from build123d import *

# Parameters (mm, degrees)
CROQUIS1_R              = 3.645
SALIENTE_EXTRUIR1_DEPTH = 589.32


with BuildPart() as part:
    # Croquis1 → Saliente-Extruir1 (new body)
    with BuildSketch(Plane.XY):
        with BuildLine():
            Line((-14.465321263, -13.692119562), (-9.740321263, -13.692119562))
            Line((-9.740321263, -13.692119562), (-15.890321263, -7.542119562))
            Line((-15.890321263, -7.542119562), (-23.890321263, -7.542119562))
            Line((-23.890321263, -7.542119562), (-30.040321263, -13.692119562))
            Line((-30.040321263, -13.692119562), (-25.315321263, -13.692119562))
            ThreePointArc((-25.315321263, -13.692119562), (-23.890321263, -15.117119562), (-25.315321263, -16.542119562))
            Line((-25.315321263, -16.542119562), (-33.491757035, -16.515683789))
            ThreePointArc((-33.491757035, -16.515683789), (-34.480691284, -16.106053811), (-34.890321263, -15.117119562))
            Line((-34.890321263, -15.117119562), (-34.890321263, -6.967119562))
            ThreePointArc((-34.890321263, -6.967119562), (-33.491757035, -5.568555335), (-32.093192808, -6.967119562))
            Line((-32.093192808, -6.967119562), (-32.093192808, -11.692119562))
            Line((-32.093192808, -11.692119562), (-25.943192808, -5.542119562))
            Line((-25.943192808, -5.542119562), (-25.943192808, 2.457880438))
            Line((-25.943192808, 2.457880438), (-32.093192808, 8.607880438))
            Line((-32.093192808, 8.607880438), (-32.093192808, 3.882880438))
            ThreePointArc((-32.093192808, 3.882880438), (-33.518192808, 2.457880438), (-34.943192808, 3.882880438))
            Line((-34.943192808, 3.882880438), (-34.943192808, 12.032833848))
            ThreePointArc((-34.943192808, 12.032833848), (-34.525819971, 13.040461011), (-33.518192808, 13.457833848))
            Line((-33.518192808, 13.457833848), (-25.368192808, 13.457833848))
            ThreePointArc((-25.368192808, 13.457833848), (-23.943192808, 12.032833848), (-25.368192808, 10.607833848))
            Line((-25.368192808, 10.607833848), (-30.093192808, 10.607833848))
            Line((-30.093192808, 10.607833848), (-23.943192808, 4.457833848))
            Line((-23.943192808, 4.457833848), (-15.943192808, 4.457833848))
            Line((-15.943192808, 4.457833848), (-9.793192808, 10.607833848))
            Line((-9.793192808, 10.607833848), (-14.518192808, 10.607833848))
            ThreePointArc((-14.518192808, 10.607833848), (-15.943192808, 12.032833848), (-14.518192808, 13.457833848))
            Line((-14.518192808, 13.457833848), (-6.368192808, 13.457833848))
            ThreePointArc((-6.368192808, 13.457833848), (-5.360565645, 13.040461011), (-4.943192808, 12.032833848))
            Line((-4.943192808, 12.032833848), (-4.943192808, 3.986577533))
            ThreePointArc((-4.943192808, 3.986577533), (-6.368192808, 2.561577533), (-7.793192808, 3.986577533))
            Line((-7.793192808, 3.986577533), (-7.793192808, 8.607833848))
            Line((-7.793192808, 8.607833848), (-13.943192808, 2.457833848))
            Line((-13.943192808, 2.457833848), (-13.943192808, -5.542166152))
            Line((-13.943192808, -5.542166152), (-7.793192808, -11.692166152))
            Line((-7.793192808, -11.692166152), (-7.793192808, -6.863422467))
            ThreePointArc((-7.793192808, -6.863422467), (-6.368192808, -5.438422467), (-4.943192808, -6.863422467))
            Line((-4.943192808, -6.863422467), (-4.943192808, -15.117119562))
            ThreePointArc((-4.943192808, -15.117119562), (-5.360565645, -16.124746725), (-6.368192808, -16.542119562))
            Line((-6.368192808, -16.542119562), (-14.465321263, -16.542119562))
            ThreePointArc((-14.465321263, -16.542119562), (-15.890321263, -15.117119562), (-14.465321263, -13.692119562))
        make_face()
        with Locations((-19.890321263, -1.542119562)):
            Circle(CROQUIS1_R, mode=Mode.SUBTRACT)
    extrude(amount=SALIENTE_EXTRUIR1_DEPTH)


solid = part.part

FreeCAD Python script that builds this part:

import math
import FreeCAD as App
import Part
import Sketcher
Q = App.Units.Quantity

doc = App.newDocument("Part")
params = doc.addObject("Spreadsheet::Sheet", "Params")
for row, (alias, value) in enumerate([
    ("sketch1_diameter", "7.29 mm"),
    ("sketch1_width", "8 mm"),
    ("pad1_length", "589.32 mm"),
], start=1):
    params.set(f"A{row}", alias)
    params.set(f"B{row}", "=" + value)
    params.setAlias(f"B{row}", alias)

body = doc.addObject("PartDesign::Body", "Body")

sketch1 = doc.addObject("Sketcher::SketchObject", "Sketch")
body.addObject(sketch1)
sketch1.AttachmentSupport = (doc.XY_Plane, [""])
sketch1.MapMode = "FlatFace"
sketch1.addGeometry([
    Part.LineSegment(App.Vector(-9.7, -13.7, 0), App.Vector(-14.5, -13.7, 0)),
    Part.ArcOfCircle(Part.Circle(App.Vector(-14.5, -15.1, 0), App.Vector(0, 0, 1), 1.4), math.radians(90), math.radians(270)),
    Part.LineSegment(App.Vector(-14.5, -16.5, 0), App.Vector(-6.4, -16.5, 0)),
    Part.ArcOfCircle(Part.Circle(App.Vector(-6.4, -15.1, 0), App.Vector(0, 0, 1), 1.4), math.radians(-90), math.radians(0)),
    Part.LineSegment(App.Vector(-4.9, -15.1, 0), App.Vector(-4.9, -6.9, 0)),
    Part.ArcOfCircle(Part.Circle(App.Vector(-6.4, -6.9, 0), App.Vector(0, 0, 1), 1.4), math.radians(0), math.radians(180)),
    Part.LineSegment(App.Vector(-7.8, -6.9, 0), App.Vector(-7.8, -11.7, 0)),
    Part.LineSegment(App.Vector(-7.8, -11.7, 0), App.Vector(-13.9, -5.5, 0)),
    Part.LineSegment(App.Vector(-13.9, -5.5, 0), App.Vector(-13.9, 2.5, 0)),
    Part.LineSegment(App.Vector(-13.9, 2.5, 0), App.Vector(-7.8, 8.6, 0)),
    Part.LineSegment(App.Vector(-7.8, 8.6, 0), App.Vector(-7.8, 4, 0)),
    Part.ArcOfCircle(Part.Circle(App.Vector(-6.4, 4, 0), App.Vector(0, 0, 1), 1.4), math.radians(180), math.radians(360)),
    Part.LineSegment(App.Vector(-4.9, 4, 0), App.Vector(-4.9, 12, 0)),
    Part.ArcOfCircle(Part.Circle(App.Vector(-6.4, 12, 0), App.Vector(0, 0, 1), 1.4), math.radians(0), math.radians(90)),
    Part.LineSegment(App.Vector(-6.4, 13.5, 0), App.Vector(-14.5, 13.5, 0)),
    Part.ArcOfCircle(Part.Circle(App.Vector(-14.5, 12, 0), App.Vector(0, 0, 1), 1.4), math.radians(90), math.radians(270)),
    Part.LineSegment(App.Vector(-14.5, 10.6, 0), App.Vector(-9.8, 10.6, 0)),
    Part.LineSegment(App.Vector(-9.8, 10.6, 0), App.Vector(-15.9, 4.5, 0)),
    Part.LineSegment(App.Vector(-15.9, 4.5, 0), App.Vector(-23.9, 4.5, 0)),
    Part.LineSegment(App.Vector(-23.9, 4.5, 0), App.Vector(-30.1, 10.6, 0)),
    Part.LineSegment(App.Vector(-30.1, 10.6, 0), App.Vector(-25.4, 10.6, 0)),
    Part.ArcOfCircle(Part.Circle(App.Vector(-25.4, 12, 0), App.Vector(0, 0, 1), 1.4), math.radians(-90), math.radians(90)),
    Part.LineSegment(App.Vector(-25.4, 13.5, 0), App.Vector(-33.5, 13.5, 0)),
    Part.ArcOfCircle(Part.Circle(App.Vector(-33.5, 12, 0), App.Vector(0, 0, 1), 1.4), math.radians(90), math.radians(180)),
    Part.LineSegment(App.Vector(-34.9, 12, 0), App.Vector(-34.9, 3.9, 0)),
    Part.ArcOfCircle(Part.Circle(App.Vector(-33.5, 3.9, 0), App.Vector(0, 0, 1), 1.4), math.radians(180), math.radians(360)),
    Part.LineSegment(App.Vector(-32.1, 3.9, 0), App.Vector(-32.1, 8.6, 0)),
    Part.LineSegment(App.Vector(-32.1, 8.6, 0), App.Vector(-25.9, 2.5, 0)),
    Part.LineSegment(App.Vector(-25.9, 2.5, 0), App.Vector(-25.9, -5.5, 0)),
    Part.LineSegment(App.Vector(-25.9, -5.5, 0), App.Vector(-32.1, -11.7, 0)),
    Part.LineSegment(App.Vector(-32.1, -11.7, 0), App.Vector(-32.1, -7, 0)),
    Part.ArcOfCircle(Part.Circle(App.Vector(-33.5, -7, 0), App.Vector(0, 0, 1), 1.4), math.radians(0), math.radians(180)),
    Part.LineSegment(App.Vector(-34.9, -7, 0), App.Vector(-34.9, -15.1, 0)),
    Part.ArcOfCircle(Part.Circle(App.Vector(-33.5, -15.1, 0), App.Vector(0, 0, 1), 1.4), math.radians(-180), math.radians(-90)),
    Part.LineSegment(App.Vector(-33.5, -16.5, 0), App.Vector(-25.3, -16.5, 0)),
    Part.ArcOfCircle(Part.Circle(App.Vector(-25.3, -15.1, 0), App.Vector(0, 0, 1), 1.4), math.radians(-90), math.radians(90)),
    Part.LineSegment(App.Vector(-25.3, -13.7, 0), App.Vector(-30, -13.7, 0)),
    Part.LineSegment(App.Vector(-30, -13.7, 0), App.Vector(-23.9, -7.5, 0)),
    Part.LineSegment(App.Vector(-23.9, -7.5, 0), App.Vector(-15.9, -7.5, 0)),
    Part.LineSegment(App.Vector(-15.9, -7.5, 0), App.Vector(-9.7, -13.7, 0)),
    Part.Circle(App.Vector(-19.9, -1.5, 0), App.Vector(0, 0, 1), 3.6),
], False)
sketch1.addConstraint([
    Sketcher.Constraint("Tangent", 0, 2, 1, 1),
    Sketcher.Constraint("Tangent", 1, 2, 2, 1),
    Sketcher.Constraint("Tangent", 2, 2, 3, 1),
    Sketcher.Constraint("Tangent", 3, 2, 4, 1),
    Sketcher.Constraint("Tangent", 4, 2, 5, 1),
    Sketcher.Constraint("Tangent", 5, 2, 6, 1),
    Sketcher.Constraint("Coincident", 6, 2, 7, 1),
    Sketcher.Constraint("Coincident", 7, 2, 8, 1),
    Sketcher.Constraint("Coincident", 8, 2, 9, 1),
    Sketcher.Constraint("Coincident", 9, 2, 10, 1),
    Sketcher.Constraint("Tangent", 10, 2, 11, 1),
    Sketcher.Constraint("Tangent", 11, 2, 12, 1),
    Sketcher.Constraint("Tangent", 12, 2, 13, 1),
    Sketcher.Constraint("Tangent", 13, 2, 14, 1),
    Sketcher.Constraint("Tangent", 14, 2, 15, 1),
    Sketcher.Constraint("Tangent", 15, 2, 16, 1),
    Sketcher.Constraint("Coincident", 16, 2, 17, 1),
    Sketcher.Constraint("Coincident", 17, 2, 18, 1),
    Sketcher.Constraint("Coincident", 18, 2, 19, 1),
    Sketcher.Constraint("Coincident", 19, 2, 20, 1),
    Sketcher.Constraint("Tangent", 20, 2, 21, 1),
    Sketcher.Constraint("Tangent", 21, 2, 22, 1),
    Sketcher.Constraint("Tangent", 22, 2, 23, 1),
    Sketcher.Constraint("Tangent", 23, 2, 24, 1),
    Sketcher.Constraint("Tangent", 24, 2, 25, 1),
    Sketcher.Constraint("Tangent", 25, 2, 26, 1),
    Sketcher.Constraint("Coincident", 26, 2, 27, 1),
    Sketcher.Constraint("Coincident", 27, 2, 28, 1),
    Sketcher.Constraint("Coincident", 28, 2, 29, 1),
    Sketcher.Constraint("Coincident", 29, 2, 30, 1),
    Sketcher.Constraint("Tangent", 30, 2, 31, 1),
    Sketcher.Constraint("Tangent", 31, 2, 32, 1),
    Sketcher.Constraint("Tangent", 32, 2, 33, 1),
    Sketcher.Constraint("Coincident", 33, 2, 34, 1),
    Sketcher.Constraint("Coincident", 34, 2, 35, 1),
    Sketcher.Constraint("Tangent", 35, 2, 36, 1),
    Sketcher.Constraint("Coincident", 36, 2, 37, 1),
    Sketcher.Constraint("Coincident", 37, 2, 38, 1),
    Sketcher.Constraint("Coincident", 38, 2, 39, 1),
    Sketcher.Constraint("Coincident", 39, 2, 0, 1),
    Sketcher.Constraint("Horizontal", 0),
    Sketcher.Constraint("Horizontal", 2),
    Sketcher.Constraint("Vertical", 4),
    Sketcher.Constraint("Vertical", 6),
    Sketcher.Constraint("Vertical", 8),
    Sketcher.Constraint("Vertical", 10),
    Sketcher.Constraint("Vertical", 12),
    Sketcher.Constraint("Horizontal", 14),
    Sketcher.Constraint("Horizontal", 16),
    Sketcher.Constraint("Horizontal", 18),
    Sketcher.Constraint("Horizontal", 20),
    Sketcher.Constraint("Horizontal", 22),
    Sketcher.Constraint("Vertical", 24),
    Sketcher.Constraint("Vertical", 26),
    Sketcher.Constraint("Vertical", 28),
    Sketcher.Constraint("Vertical", 30),
    Sketcher.Constraint("Vertical", 32),
    Sketcher.Constraint("Horizontal", 36),
    Sketcher.Constraint("Horizontal", 38),
    Sketcher.Constraint("Equal", 1, 3),
    Sketcher.Constraint("Equal", 3, 5),
    Sketcher.Constraint("Equal", 5, 11),
    Sketcher.Constraint("Equal", 11, 13),
    Sketcher.Constraint("Equal", 13, 15),
    Sketcher.Constraint("Equal", 15, 21),
    Sketcher.Constraint("Equal", 21, 23),
    Sketcher.Constraint("Equal", 23, 25),
    Sketcher.Constraint("Equal", 31, 33),
    Sketcher.Constraint("Equal", 25, 35),
    Sketcher.Constraint("Perpendicular", 7, 9),
    Sketcher.Constraint("Parallel", 9, 17),
    Sketcher.Constraint("Perpendicular", 17, 19),
    Sketcher.Constraint("Parallel", 19, 27),
    Sketcher.Constraint("Perpendicular", 27, 29),
    Sketcher.Constraint("Parallel", 29, 37),
    Sketcher.Constraint("Perpendicular", 37, 39),
    Sketcher.Constraint("Horizontal", 15, 3, 21, 3),
    Sketcher.Constraint("Horizontal", 3, 3, 33, 3),
    Sketcher.Constraint("Horizontal", 33, 3, 35, 3),
    Sketcher.Constraint("Vertical", 5, 3, 11, 3),
    Sketcher.Constraint("Vertical", 26, 2, 29, 2),
    Sketcher.Constraint("Vertical", 31, 3, 33, 2),
    Sketcher.Constraint("Vertical", 35, 3, 34, 2),
    Sketcher.Constraint("Equal", 0, 16),
    Sketcher.Constraint("Equal", 16, 20),
    Sketcher.Constraint("Equal", 14, 22),
    Sketcher.Constraint("Equal", 20, 36),
    Sketcher.Constraint("Equal", 18, 38),
    Sketcher.Constraint("Equal", 38, 8),
    Sketcher.Constraint("Equal", 36, 26),
    Sketcher.Constraint("Equal", 8, 28),
    Sketcher.Constraint("Equal", 26, 30),
    Sketcher.Constraint("Equal", 22, 32),
    Sketcher.Constraint("Equal", 7, 9),
    Sketcher.Constraint("Equal", 9, 17),
    Sketcher.Constraint("Equal", 19, 27),
    Sketcher.Constraint("Equal", 29, 37),
    Sketcher.Constraint("Diameter", 40, Q("7.29 mm")),
    Sketcher.Constraint("DistanceX", 18, 2, 18, 1, Q("8 mm")),
    Sketcher.Constraint("Radius", 1, Q("1.425 mm")),
    Sketcher.Constraint("DistanceX", 21, 3, 13, 3, Q("19 mm")),
    Sketcher.Constraint("DistanceX", 8, 2, 11, 2, Q("9 mm")),
    Sketcher.Constraint("DistanceY", 9, 2, 15, 2, Q("2 mm")),
    Sketcher.Constraint("DistanceX", 16, 2, 9, 2, Q("2 mm")),
    Sketcher.Constraint("DistanceY", 40, 3, 27, 2, Q("4 mm")),
    Sketcher.Constraint("DistanceX", 37, 2, 40, 3, Q("4 mm")),
    Sketcher.Constraint("DistanceY", 5, 3, 11, 3, Q("10.85 mm")),
    Sketcher.Constraint("Radius", 31, Q("1.398564 mm")),
    Sketcher.Constraint("DistanceX", 32, 2, 34, 2, Q("9.575 mm")),
    Sketcher.Constraint("DistanceY", 4, 1, 4, 2, Q("8.253697 mm")),
    Sketcher.Constraint("DistanceY", 6, 2, 6, 1, Q("4.828744 mm")),
    Sketcher.Constraint("DistanceX", 1, 3, -1, 1, Q("14.465321 mm")),
    Sketcher.Constraint("DistanceY", 1, 3, -1, 1, Q("15.11712 mm")),
])
sketch1.setExpression("Constraints[97]", "Params.sketch1_diameter")
sketch1.setExpression("Constraints[98]", "Params.sketch1_width")
pad1 = doc.addObject("PartDesign::Pad", "Pad")
body.addObject(pad1)
pad1.Profile = sketch1
pad1.setExpression("Length", "Params.pad1_length")

doc.recompute()
